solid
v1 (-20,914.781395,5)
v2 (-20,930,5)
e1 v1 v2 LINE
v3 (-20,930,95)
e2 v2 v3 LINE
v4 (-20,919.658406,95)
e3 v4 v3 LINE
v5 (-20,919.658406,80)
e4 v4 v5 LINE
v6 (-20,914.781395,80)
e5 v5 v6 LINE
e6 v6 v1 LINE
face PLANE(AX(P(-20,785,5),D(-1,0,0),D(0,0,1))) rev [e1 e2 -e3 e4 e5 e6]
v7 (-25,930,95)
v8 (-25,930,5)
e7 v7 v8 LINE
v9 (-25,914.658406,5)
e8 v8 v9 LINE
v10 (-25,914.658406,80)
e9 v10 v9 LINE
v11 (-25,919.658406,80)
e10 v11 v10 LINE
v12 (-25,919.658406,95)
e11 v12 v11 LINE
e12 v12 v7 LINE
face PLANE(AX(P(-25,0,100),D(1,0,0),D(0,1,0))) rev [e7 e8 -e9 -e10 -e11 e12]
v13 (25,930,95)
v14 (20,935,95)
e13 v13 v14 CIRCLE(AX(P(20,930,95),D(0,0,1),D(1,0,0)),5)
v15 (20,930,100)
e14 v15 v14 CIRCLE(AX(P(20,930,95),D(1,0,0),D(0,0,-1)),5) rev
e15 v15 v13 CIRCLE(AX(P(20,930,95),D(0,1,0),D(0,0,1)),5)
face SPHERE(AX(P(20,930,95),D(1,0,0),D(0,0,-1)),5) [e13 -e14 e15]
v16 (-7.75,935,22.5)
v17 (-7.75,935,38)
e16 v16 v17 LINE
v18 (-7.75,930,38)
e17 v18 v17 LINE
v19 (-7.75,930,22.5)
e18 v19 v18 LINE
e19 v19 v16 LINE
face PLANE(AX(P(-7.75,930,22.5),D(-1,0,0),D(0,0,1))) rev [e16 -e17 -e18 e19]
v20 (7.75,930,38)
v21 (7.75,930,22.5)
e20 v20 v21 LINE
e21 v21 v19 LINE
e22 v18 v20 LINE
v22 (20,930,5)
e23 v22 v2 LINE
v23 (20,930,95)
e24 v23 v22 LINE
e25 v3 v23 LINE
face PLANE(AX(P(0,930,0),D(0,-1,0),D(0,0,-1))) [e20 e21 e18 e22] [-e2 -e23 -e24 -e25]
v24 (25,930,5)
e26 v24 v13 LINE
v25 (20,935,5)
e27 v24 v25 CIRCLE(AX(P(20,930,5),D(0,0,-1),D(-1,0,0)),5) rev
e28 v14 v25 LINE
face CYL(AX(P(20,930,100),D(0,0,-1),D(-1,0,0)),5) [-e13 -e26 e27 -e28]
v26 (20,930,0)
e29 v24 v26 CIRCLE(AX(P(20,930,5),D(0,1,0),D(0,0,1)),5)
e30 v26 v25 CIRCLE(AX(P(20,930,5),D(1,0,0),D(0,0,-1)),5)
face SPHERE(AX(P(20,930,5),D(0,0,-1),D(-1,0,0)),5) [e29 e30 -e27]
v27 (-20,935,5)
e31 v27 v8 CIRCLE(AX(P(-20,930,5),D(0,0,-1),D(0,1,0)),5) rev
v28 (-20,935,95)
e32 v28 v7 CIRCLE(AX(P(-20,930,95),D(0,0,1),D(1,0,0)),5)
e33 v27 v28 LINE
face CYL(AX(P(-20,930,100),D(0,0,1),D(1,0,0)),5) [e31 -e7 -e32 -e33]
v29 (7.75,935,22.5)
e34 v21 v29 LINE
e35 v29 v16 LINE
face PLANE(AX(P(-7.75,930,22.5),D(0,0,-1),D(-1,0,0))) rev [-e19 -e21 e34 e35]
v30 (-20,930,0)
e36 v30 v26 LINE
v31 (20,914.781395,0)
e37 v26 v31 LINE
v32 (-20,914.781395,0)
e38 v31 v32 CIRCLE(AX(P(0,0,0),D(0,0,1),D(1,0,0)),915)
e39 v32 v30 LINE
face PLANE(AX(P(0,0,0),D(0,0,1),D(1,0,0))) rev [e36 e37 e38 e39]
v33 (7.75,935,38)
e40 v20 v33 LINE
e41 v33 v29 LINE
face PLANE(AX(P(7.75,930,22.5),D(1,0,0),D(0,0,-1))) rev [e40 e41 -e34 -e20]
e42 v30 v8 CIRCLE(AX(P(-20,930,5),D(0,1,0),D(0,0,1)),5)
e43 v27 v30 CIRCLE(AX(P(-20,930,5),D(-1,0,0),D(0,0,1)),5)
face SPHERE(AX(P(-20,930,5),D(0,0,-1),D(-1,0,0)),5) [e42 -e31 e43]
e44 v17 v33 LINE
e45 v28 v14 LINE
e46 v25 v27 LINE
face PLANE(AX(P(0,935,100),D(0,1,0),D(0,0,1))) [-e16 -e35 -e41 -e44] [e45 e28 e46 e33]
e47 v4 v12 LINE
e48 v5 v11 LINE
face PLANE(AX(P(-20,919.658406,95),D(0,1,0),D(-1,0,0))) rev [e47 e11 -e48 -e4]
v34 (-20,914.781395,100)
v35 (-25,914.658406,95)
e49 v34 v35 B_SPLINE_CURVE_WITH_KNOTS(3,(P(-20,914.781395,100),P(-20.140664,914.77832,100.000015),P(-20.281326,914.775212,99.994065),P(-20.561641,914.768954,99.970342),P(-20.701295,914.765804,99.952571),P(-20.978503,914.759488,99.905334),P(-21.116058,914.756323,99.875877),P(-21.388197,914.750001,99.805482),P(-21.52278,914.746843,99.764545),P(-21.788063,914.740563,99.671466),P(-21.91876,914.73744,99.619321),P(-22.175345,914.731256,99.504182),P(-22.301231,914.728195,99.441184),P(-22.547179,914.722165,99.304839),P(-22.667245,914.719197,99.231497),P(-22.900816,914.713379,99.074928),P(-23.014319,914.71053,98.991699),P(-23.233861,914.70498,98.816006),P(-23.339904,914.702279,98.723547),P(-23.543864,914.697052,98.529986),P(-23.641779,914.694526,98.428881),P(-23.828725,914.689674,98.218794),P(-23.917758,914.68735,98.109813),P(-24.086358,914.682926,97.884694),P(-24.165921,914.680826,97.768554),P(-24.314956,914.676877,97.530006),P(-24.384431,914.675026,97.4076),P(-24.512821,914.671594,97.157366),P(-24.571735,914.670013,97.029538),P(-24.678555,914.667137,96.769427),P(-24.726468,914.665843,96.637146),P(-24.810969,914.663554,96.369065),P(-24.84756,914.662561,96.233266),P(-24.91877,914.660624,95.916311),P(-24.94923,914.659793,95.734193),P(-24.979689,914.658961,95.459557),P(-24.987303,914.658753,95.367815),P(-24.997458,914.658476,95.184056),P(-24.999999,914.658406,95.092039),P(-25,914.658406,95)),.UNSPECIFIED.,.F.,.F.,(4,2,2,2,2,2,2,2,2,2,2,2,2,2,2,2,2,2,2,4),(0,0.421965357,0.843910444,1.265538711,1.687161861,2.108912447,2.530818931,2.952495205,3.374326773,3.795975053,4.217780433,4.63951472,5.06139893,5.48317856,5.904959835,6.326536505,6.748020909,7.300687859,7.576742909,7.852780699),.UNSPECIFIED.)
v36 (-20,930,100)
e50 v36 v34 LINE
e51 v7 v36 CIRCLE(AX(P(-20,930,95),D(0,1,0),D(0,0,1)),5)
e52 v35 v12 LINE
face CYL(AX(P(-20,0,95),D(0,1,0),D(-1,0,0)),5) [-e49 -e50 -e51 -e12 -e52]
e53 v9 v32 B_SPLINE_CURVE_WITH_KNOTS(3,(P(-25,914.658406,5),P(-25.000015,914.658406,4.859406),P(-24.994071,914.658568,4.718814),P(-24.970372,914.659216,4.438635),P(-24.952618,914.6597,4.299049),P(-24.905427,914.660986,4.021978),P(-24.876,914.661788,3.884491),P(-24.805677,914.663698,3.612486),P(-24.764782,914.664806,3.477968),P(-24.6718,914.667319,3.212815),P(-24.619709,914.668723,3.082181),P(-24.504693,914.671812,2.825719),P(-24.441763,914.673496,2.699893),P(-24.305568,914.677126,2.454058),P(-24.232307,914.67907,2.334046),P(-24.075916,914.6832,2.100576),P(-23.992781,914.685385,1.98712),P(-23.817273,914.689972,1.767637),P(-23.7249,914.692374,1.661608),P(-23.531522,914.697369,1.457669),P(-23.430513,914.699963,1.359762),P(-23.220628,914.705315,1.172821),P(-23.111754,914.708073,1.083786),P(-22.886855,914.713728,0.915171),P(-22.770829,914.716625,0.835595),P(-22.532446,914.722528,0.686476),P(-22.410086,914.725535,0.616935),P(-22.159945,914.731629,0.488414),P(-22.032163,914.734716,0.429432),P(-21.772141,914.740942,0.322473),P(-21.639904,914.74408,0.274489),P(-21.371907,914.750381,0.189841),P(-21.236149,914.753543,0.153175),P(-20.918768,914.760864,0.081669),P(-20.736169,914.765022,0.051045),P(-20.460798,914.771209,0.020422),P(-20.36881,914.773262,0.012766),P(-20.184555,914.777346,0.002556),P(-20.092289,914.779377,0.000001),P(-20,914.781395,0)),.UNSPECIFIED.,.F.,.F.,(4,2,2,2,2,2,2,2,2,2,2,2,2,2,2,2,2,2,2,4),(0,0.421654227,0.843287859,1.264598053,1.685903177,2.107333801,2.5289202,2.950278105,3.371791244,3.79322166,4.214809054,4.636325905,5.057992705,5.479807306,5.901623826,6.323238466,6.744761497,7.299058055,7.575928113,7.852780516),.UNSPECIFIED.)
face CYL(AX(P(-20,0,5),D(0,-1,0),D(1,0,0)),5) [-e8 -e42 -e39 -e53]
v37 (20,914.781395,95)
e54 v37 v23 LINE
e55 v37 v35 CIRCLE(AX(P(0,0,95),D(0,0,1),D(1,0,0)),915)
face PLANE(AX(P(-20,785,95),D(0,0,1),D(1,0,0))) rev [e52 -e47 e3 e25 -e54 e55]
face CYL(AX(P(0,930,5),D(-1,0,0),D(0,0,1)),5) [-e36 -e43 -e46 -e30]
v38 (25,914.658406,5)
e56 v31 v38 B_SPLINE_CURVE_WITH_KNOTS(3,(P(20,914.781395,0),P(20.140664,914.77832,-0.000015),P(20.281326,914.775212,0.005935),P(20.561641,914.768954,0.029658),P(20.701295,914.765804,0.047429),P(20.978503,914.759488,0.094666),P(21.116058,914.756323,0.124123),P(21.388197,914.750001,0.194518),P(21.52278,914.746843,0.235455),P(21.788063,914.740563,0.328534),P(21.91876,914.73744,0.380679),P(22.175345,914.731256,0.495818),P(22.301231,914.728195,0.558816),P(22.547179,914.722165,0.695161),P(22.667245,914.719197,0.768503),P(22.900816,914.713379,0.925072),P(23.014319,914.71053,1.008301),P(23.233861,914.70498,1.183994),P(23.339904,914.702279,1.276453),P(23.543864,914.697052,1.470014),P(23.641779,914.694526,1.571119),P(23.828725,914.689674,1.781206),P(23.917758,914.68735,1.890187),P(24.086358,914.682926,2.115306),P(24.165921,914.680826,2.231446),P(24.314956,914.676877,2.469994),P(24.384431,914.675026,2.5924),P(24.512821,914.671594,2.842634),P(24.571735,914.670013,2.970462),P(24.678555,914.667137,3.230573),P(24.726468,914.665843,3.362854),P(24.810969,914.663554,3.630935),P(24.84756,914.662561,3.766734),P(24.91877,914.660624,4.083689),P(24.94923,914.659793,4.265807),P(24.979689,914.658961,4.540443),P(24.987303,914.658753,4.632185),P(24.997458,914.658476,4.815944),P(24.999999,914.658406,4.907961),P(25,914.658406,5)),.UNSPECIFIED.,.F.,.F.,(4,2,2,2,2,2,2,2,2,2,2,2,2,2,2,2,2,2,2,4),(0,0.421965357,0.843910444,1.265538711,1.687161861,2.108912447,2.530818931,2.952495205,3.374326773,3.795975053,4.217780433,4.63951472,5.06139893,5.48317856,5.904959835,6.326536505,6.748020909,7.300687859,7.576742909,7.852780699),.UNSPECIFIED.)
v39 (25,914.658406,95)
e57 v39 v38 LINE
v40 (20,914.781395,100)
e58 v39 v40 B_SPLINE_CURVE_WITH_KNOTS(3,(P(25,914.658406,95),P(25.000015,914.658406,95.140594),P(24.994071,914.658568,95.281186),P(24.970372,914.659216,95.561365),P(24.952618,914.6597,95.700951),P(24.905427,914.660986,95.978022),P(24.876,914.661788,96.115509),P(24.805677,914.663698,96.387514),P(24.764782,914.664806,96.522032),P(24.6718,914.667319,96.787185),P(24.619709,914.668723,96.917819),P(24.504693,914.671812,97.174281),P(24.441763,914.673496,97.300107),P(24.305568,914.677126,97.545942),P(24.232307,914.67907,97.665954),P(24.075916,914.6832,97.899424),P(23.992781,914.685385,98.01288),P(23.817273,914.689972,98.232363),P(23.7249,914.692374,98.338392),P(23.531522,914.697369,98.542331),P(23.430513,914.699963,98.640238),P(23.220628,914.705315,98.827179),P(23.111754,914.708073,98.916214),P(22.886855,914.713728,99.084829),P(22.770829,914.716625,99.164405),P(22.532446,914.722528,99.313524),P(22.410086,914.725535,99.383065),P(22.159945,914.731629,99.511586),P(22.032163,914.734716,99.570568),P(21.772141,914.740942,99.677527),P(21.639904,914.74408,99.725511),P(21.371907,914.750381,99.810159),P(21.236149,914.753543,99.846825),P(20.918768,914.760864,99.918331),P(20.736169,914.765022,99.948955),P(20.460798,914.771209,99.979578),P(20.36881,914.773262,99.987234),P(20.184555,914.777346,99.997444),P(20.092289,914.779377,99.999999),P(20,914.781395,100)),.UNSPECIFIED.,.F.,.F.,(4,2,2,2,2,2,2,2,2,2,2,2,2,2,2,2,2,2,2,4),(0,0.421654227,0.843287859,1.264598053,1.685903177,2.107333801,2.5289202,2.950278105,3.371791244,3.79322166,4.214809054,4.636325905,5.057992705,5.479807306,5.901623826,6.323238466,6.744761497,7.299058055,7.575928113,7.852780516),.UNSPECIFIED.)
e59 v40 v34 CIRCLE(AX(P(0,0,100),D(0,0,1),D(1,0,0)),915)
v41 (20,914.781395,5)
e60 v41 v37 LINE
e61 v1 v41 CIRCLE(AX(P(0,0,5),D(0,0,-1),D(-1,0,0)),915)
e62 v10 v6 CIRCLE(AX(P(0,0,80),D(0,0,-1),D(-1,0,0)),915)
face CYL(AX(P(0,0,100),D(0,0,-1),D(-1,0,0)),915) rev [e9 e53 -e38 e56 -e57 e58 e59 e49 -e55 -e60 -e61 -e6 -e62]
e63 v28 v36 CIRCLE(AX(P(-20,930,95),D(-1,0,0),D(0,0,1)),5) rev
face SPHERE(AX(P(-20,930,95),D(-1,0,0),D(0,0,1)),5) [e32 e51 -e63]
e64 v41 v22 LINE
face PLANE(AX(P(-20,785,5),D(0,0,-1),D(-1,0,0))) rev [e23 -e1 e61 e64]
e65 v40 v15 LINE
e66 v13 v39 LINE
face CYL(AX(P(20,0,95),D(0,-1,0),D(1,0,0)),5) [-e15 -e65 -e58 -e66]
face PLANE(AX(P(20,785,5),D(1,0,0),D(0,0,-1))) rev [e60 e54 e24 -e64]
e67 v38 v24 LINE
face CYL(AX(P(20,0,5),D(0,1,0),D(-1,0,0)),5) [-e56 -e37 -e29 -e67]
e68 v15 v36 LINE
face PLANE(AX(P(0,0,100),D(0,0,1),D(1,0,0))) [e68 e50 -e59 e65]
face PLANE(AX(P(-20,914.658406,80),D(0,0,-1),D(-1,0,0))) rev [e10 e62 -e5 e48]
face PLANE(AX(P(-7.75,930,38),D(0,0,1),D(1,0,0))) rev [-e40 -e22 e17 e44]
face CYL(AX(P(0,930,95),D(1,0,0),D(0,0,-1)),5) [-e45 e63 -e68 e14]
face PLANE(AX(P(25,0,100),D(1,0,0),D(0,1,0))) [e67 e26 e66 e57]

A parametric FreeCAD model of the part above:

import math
import FreeCAD as App
import Part
import Sketcher

V = App.Vector
Q = App.Units.Quantity


def edges_at(feature, points):
    """Names of the edges that pass closest to the given points."""
    edges = feature.Shape.Edges
    near = lambda p: min(range(len(edges)), key=lambda i: edges[i].distToShape(Part.Vertex(*p))[0])
    return sorted({f"Edge{near(p) + 1}" for p in points})

doc = App.newDocument("Part")
params = doc.addObject("Spreadsheet::Sheet", "Params")
for row, (alias, value) in enumerate([
    ("sketch1_radius", "914.999999 mm"),
    ("sketch1_width", "50 mm"),
    ("pad1_length", "100 mm"),
    ("sketch2_width", "40 mm"),
    ("sketch2_height", "90 mm"),
    ("pocket1_length", "150 mm"),
    ("sketch3_width", "50 mm"),
    ("sketch3_height", "100 mm"),
    ("sketch3_width2", "15.5 mm"),
    ("pad2_length", "5 mm"),
    ("fillet_radius", "5 mm"),
    ("sketch4_width", "5 mm"),
    ("sketch4_height", "15 mm"),
    ("pocket2_length", "5 mm"),
], start=1):
    params.set(f"A{row}", alias)
    params.set(f"B{row}", "=" + value)
    params.setAlias(f"B{row}", alias)

body = doc.addObject("PartDesign::Body", "Body")

# Sketch on XY plane
sketch1 = body.newObject("Sketcher::SketchObject", "Sketch")
sketch1.AttachmentSupport = (doc.getObject("XY_Plane"), [""])
sketch1.MapMode = "FlatFace"
sketch1.addGeometry([
    Part.LineSegment(V(25, 935, 0), V(-25, 935, 0)),
    Part.LineSegment(V(-25, 935, 0), V(-25, 915, 0)),
    Part.ArcOfCircle(Part.Circle(V(0, 0, 0), V(0, 0, 1), 915), math.radians(88.43), math.radians(91.57)),
    Part.LineSegment(V(25, 915, 0), V(25, 935, 0)),
], False)
sketch1.addConstraint([
    Sketcher.Constraint("Coincident", 0, 2, 1, 1),
    Sketcher.Constraint("Coincident", 1, 2, 2, 2),
    Sketcher.Constraint("Coincident", 2, 1, 3, 1),
    Sketcher.Constraint("Coincident", 3, 2, 0, 1),
    Sketcher.Constraint("Horizontal", 0),
    Sketcher.Constraint("Vertical", 1),
    Sketcher.Constraint("Vertical", 3),
    Sketcher.Constraint("Coincident", 2, 3, -1, 1),
    Sketcher.Constraint("Equal", 1, 3),
    Sketcher.Constraint("Radius", 2, Q("914.999999 mm")),
    Sketcher.Constraint("DistanceX", 0, 2, 0, 1, Q("50 mm")),
    Sketcher.Constraint("DistanceY", -1, 1, 0, 2, Q("935 mm")),
])
sketch1.setExpression("Constraints[9]", "Params.sketch1_radius")
sketch1.setExpression("Constraints[10]", "Params.sketch1_width")
pad1 = body.newObject("PartDesign::Pad", "Pad")
pad1.Profile = sketch1
pad1.setExpression("Length", "Params.pad1_length")

# Sketch on XZ plane
sketch2 = body.newObject("Sketcher::SketchObject", "Sketch001")
sketch2.AttachmentSupport = (doc.getObject("XZ_Plane"), [""])
sketch2.MapMode = "FlatFace"
sketch2.AttachmentOffset = App.Placement(V(0, 0, -935), App.Rotation())
sketch2.addGeometry([
    Part.LineSegment(V(-20, 5, 0), V(-20, 95, 0)),
    Part.LineSegment(V(-20, 95, 0), V(20, 95, 0)),
    Part.LineSegment(V(20, 95, 0), V(20, 5, 0)),
    Part.LineSegment(V(20, 5, 0), V(-20, 5, 0)),
], False)
sketch2.addConstraint([
    Sketcher.Constraint("Coincident", 0, 2, 1, 1),
    Sketcher.Constraint("Coincident", 1, 2, 2, 1),
    Sketcher.Constraint("Coincident", 2, 2, 3, 1),
    Sketcher.Constraint("Coincident", 3, 2, 0, 1),
    Sketcher.Constraint("Vertical", 0),
    Sketcher.Constraint("Horizontal", 1),
    Sketcher.Constraint("Vertical", 2),
    Sketcher.Constraint("Horizontal", 3),
    Sketcher.Constraint("DistanceX", 1, 1, 1, 2, Q("40 mm")),
    Sketcher.Constraint("DistanceY", 0, 1, 0, 2, Q("90 mm")),
    Sketcher.Constraint("DistanceX", 0, 2, -1, 1, Q("20 mm")),
    Sketcher.Constraint("DistanceY", -1, 1, 0, 2, Q("95 mm")),
])
sketch2.setExpression("Constraints[8]", "Params.sketch2_width")
sketch2.setExpression("Constraints[9]", "Params.sketch2_height")
pocket1 = body.newObject("PartDesign::Pocket", "Pocket")
pocket1.Profile = sketch2
pocket1.setExpression("Length", "Params.pocket1_length")
pocket1.Reversed = True

# Sketch on XZ plane
sketch3 = body.newObject("Sketcher::SketchObject", "Sketch002")
sketch3.AttachmentSupport = (doc.getObject("XZ_Plane"), [""])
sketch3.MapMode = "FlatFace"
sketch3.AttachmentOffset = App.Placement(V(0, 0, -935), App.Rotation())
sketch3.addGeometry([
    Part.LineSegment(V(-25, 0, 0), V(-25, 100, 0)),  # 0
    Part.LineSegment(V(-25, 100, 0), V(25, 100, 0)),  # 1
    Part.LineSegment(V(25, 100, 0), V(25, 0, 0)),  # 2
    Part.LineSegment(V(25, 0, 0), V(-25, 0, 0)),  # 3
    Part.LineSegment(V(8, 38, 0), V(-8, 38, 0)),  # 4
    Part.LineSegment(V(-8, 38, 0), V(-8, 22, 0)),  # 5
    Part.LineSegment(V(-8, 22, 0), V(8, 22, 0)),  # 6
    Part.LineSegment(V(8, 22, 0), V(8, 38, 0)),  # 7
], False)
sketch3.addConstraint([
    Sketcher.Constraint("Coincident", 0, 2, 1, 1),
    Sketcher.Constraint("Coincident", 1, 2, 2, 1),
    Sketcher.Constraint("Coincident", 2, 2, 3, 1),
    Sketcher.Constraint("Coincident", 3, 2, 0, 1),
    Sketcher.Constraint("Coincident", 4, 2, 5, 1),
    Sketcher.Constraint("Coincident", 5, 2, 6, 1),
    Sketcher.Constraint("Coincident", 6, 2, 7, 1),
    Sketcher.Constraint("Coincident", 7, 2, 4, 1),
    Sketcher.Constraint("Vertical", 0),
    Sketcher.Constraint("Horizontal", 1),
    Sketcher.Constraint("Vertical", 2),
    Sketcher.Constraint("Horizontal", 3),
    Sketcher.Constraint("Horizontal", 4),
    Sketcher.Constraint("Vertical", 5),
    Sketcher.Constraint("Horizontal", 6),
    Sketcher.Constraint("Vertical", 7),
    Sketcher.Constraint("Symmetric", 2, 2, 3, 2, -1, 1),
    Sketcher.Constraint("Equal", 6, 5),
    Sketcher.Constraint("DistanceX", 1, 1, 1, 2, Q("50 mm")),
    Sketcher.Constraint("DistanceY", 0, 1, 0, 2, Q("100 mm")),
    Sketcher.Constraint("DistanceX", 4, 2, 4, 1, Q("15.5 mm")),
    Sketcher.Constraint("DistanceY", -1, 1, 4, 2, Q("38 mm")),
    Sketcher.Constraint("DistanceX", 4, 2, -1, 1, Q("7.75 mm")),
])
sketch3.setExpression("Constraints[18]", "Params.sketch3_width")
sketch3.setExpression("Constraints[19]", "Params.sketch3_height")
sketch3.setExpression("Constraints[20]", "Params.sketch3_width2")
pad2 = body.newObject("PartDesign::Pad", "Pad001")
pad2.Profile = sketch3
pad2.setExpression("Length", "Params.pad2_length")
doc.recompute()

fillet = body.newObject("PartDesign::Fillet", "Fillet")
fillet.Base = (pad2, edges_at(pad2, [
    (25, 924.829, 100),
    (0, 935, 100),
    (-25, 924.829, 100),
    (-25, 924.829, 0),
    (0, 935, 0),
    (25, 924.829, 0),
    (-25, 935, 50),
    (25, 935, 50),
]))
fillet.setExpression("Radius", "Params.fillet_radius")

# Sketch on YZ plane
sketch4 = body.newObject("Sketcher::SketchObject", "Sketch003")
sketch4.AttachmentSupport = (doc.getObject("YZ_Plane"), [""])
sketch4.MapMode = "FlatFace"
sketch4.AttachmentOffset = App.Placement(V(0, 0, -25), App.Rotation())
sketch4.addGeometry([
    Part.LineSegment(V(920, 80, 0), V(915, 80, 0)),
    Part.LineSegment(V(915, 80, 0), V(915, 95, 0)),
    Part.LineSegment(V(915, 95, 0), V(920, 95, 0)),
    Part.LineSegment(V(920, 95, 0), V(920, 80, 0)),
], False)
sketch4.addConstraint([
    Sketcher.Constraint("Coincident", 0, 2, 1, 1),
    Sketcher.Constraint("Coincident", 1, 2, 2, 1),
    Sketcher.Constraint("Coincident", 2, 2, 3, 1),
    Sketcher.Constraint("Coincident", 3, 2, 0, 1),
    Sketcher.Constraint("Horizontal", 0),
    Sketcher.Constraint("Vertical", 1),
    Sketcher.Constraint("Horizontal", 2),
    Sketcher.Constraint("Vertical", 3),
    Sketcher.Constraint("DistanceX", 0, 2, 0, 1, Q("5 mm")),
    Sketcher.Constraint("DistanceY", 1, 1, 1, 2, Q("15 mm")),
    Sketcher.Constraint("DistanceY", -1, 1, 0, 2, Q("80 mm")),
    Sketcher.Constraint("DistanceX", -1, 1, 0, 2, Q("914.658406 mm")),
])
sketch4.setExpression("Constraints[8]", "Params.sketch4_width")
sketch4.setExpression("Constraints[9]", "Params.sketch4_height")
pocket2 = body.newObject("PartDesign::Pocket", "Pocket001")
pocket2.Profile = sketch4
pocket2.setExpression("Length", "Params.pocket2_length")
pocket2.Reversed = True

doc.recompute()
